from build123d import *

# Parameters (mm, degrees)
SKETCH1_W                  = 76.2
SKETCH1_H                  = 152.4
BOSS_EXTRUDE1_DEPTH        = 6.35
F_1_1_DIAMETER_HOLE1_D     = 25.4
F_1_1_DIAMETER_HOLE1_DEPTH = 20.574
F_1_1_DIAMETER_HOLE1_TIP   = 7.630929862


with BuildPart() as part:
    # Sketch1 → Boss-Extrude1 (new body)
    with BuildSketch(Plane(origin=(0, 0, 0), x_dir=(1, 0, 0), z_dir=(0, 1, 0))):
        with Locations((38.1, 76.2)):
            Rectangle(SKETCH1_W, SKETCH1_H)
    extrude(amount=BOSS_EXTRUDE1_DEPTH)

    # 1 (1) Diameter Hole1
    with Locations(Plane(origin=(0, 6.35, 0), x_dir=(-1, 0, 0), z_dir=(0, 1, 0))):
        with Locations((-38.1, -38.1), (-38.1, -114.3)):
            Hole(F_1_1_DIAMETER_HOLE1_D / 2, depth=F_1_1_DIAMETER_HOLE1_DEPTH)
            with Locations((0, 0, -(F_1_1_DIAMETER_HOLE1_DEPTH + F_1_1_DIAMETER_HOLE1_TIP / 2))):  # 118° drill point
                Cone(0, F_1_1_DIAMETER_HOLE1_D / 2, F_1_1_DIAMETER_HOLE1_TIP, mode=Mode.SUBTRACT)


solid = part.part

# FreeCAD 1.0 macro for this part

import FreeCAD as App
import Part
import Sketcher
Q = App.Units.Quantity


def add_polygon(sketch, points):
    """Adds a closed chain of lines whose ends are joined by coincident constraints."""
    first, n = sketch.GeometryCount, len(points)
    for a, b in zip(points, points[1:] + points[:1]):
        sketch.addGeometry(Part.LineSegment(App.Vector(*a, 0), App.Vector(*b, 0)), False)
    for i in range(n):
        sketch.addConstraint(Sketcher.Constraint("Coincident", first + i, 2, first + (i + 1) % n, 1))

doc = App.newDocument("Part")
body = doc.addObject("PartDesign::Body", "Body")

# Sketch on XZ plane
sketch1 = doc.addObject("Sketcher::SketchObject", "Sketch")
body.addObject(sketch1)
sketch1.AttachmentSupport = (doc.XZ_Plane, [""])
sketch1.MapMode = "FlatFace"
add_polygon(sketch1, [(0, -152.4), (0, 0), (76.2, 0), (76.2, -152.4)])  # lines 0-3
sketch1.addConstraint([
    Sketcher.Constraint("Vertical", 0),
    Sketcher.Constraint("Horizontal", 1),
    Sketcher.Constraint("Vertical", 2),
    Sketcher.Constraint("Horizontal", 3),
    Sketcher.Constraint("Coincident", 0, 2, -1, 1),
    Sketcher.Constraint("DistanceX", 1, 1, 1, 2, Q("3 in")),
    Sketcher.Constraint("DistanceY", 0, 1, 0, 2, Q("6 in")),
])
pad1 = doc.addObject("PartDesign::Pad", "Pad")
body.addObject(pad1)
pad1.Profile = sketch1
pad1.Length = Q("0.25 in")
pad1.Reversed = True

# Sketch on XZ plane
sketch2 = doc.addObject("Sketcher::SketchObject", "Sketch001")
body.addObject(sketch2)
sketch2.AttachmentSupport = (doc.XZ_Plane, [""])
sketch2.MapMode = "FlatFace"
sketch2.AttachmentOffset = App.Placement(App.Vector(0, 0, -0.25 * 25.4), App.Rotation())
sketch2.addGeometry([
    Part.Circle(App.Vector(38.1, -38.1, 0), App.Vector(0, 0, 1), 12.7),
    Part.Circle(App.Vector(38.1, -114.3, 0), App.Vector(0, 0, 1), 12.7),
], False)
sketch2.addConstraint([
    Sketcher.Constraint("Equal", 0, 1),
    Sketcher.Constraint("Vertical", 0, 3, 1, 3),
    Sketcher.Constraint("Diameter", 0, Q("1 in")),
    Sketcher.Constraint("DistanceY", 1, 3, 0, 3, Q("3 in")),
    Sketcher.Constraint("DistanceX", -1, 1, 0, 3, Q("1.5 in")),
    Sketcher.Constraint("DistanceY", 0, 3, -1, 1, Q("1.5 in")),
])
doc.recompute()
hole = doc.addObject("PartDesign::Hole", "Hole")
body.addObject(hole)
hole.Profile = sketch2
hole.ThreadType = "None"
hole.Diameter = Q("1 in")
hole.DepthType = "Dimension"
hole.Depth = Q("0.81 in")
hole.DrillPoint = "Angled"
hole.DrillPointAngle = 118
hole.Reversed = True

doc.recompute()
